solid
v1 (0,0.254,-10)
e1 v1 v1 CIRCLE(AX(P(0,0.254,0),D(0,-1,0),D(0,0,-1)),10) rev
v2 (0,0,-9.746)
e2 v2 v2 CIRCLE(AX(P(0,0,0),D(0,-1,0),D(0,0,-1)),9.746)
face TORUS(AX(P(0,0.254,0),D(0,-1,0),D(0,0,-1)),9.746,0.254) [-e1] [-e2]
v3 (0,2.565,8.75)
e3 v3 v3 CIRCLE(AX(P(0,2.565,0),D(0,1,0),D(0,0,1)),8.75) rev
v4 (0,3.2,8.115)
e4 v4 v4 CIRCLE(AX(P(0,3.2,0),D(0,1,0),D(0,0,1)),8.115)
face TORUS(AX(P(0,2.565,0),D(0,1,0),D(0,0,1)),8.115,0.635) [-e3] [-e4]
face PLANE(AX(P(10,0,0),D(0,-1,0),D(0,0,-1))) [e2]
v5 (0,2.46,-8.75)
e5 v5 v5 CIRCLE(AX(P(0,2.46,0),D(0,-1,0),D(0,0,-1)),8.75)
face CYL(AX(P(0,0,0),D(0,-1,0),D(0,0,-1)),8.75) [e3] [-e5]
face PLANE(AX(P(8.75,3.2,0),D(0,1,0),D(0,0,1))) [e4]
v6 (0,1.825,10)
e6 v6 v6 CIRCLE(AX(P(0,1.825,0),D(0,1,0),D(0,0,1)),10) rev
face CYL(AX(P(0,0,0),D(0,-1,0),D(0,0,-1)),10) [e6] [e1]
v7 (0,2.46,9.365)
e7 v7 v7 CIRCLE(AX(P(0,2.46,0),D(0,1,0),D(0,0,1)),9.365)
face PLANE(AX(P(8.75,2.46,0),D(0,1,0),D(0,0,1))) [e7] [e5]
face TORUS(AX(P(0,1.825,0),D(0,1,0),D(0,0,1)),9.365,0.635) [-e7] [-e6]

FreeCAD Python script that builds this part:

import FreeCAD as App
import Part
import Sketcher

V = App.Vector
Q = App.Units.Quantity


def edges_at(feature, points):
    """Names of the edges that pass closest to the given points."""
    edges = feature.Shape.Edges
    near = lambda p: min(range(len(edges)), key=lambda i: edges[i].distToShape(Part.Vertex(*p))[0])
    return sorted({f"Edge{near(p) + 1}" for p in points})


def add_polygon(sketch, points):
    """Adds a closed chain of lines whose ends are joined by coincident constraints."""
    first, n = sketch.GeometryCount, len(points)
    for a, b in zip(points, points[1:] + points[:1]):
        sketch.addGeometry(Part.LineSegment(App.Vector(*a, 0), App.Vector(*b, 0)), False)
    for i in range(n):
        sketch.addConstraint(Sketcher.Constraint("Coincident", first + i, 2, first + (i + 1) % n, 1))

doc = App.newDocument("Part")
params = doc.addObject("Spreadsheet::Sheet", "Params")
for row, (alias, value) in enumerate([
    ("sketch1_width", "10 mm"),
    ("sketch1_height", "3.2 mm"),
    ("sketch1_width2", "1.25 mm"),
    ("sketch1_height2", "2.46 mm"),
    ("revolution_angle", "360 deg"),
    ("fillet_radius", "0.635 mm"),
    ("fillet2_radius", "0.254 mm"),
], start=1):
    params.set(f"A{row}", alias)
    params.set(f"B{row}", "=" + value)
    params.setAlias(f"B{row}", alias)

body = doc.addObject("PartDesign::Body", "Body")

# Sketch on XY plane
sketch1 = body.newObject("Sketcher::SketchObject", "Sketch")
sketch1.AttachmentSupport = (doc.getObject("XY_Plane"), [""])
sketch1.MapMode = "FlatFace"
add_polygon(sketch1, [(0, 3.2), (0, 0), (10, 0), (10, 2.5), (8.8, 2.5), (8.8, 3.2)])  # lines 0-5
sketch1.addConstraint([
    Sketcher.Constraint("Vertical", 0),
    Sketcher.Constraint("Horizontal", 1),
    Sketcher.Constraint("Vertical", 2),
    Sketcher.Constraint("Horizontal", 3),
    Sketcher.Constraint("Vertical", 4),
    Sketcher.Constraint("Horizontal", 5),
    Sketcher.Constraint("Coincident", 0, 2, -1, 1),
    Sketcher.Constraint("DistanceX", 1, 1, 1, 2, Q("10 mm")),
    Sketcher.Constraint("DistanceY", 0, 2, 0, 1, Q("3.2 mm")),
    Sketcher.Constraint("DistanceX", 3, 2, 3, 1, Q("1.25 mm")),
    Sketcher.Constraint("DistanceY", 2, 1, 2, 2, Q("2.46 mm")),
])
sketch1.setExpression("Constraints[13]", "Params.sketch1_width")
sketch1.setExpression("Constraints[14]", "Params.sketch1_height")
sketch1.setExpression("Constraints[15]", "Params.sketch1_width2")
sketch1.setExpression("Constraints[16]", "Params.sketch1_height2")
revolution = body.newObject("PartDesign::Revolution", "Revolution")
revolution.Profile = sketch1
revolution.ReferenceAxis = (sketch1, ["V_Axis"])
revolution.setExpression("Angle", "Params.revolution_angle")
doc.recompute()

fillet = body.newObject("PartDesign::Fillet", "Fillet")
fillet.Base = (revolution, edges_at(revolution, [(-10, 2.46, 0), (-8.75, 3.2, 0)]))
fillet.setExpression("Radius", "Params.fillet_radius")
doc.recompute()

fillet2 = body.newObject("PartDesign::Fillet", "Fillet001")
fillet2.Base = (fillet, edges_at(fillet, [(-10, 0, 0)]))
fillet2.setExpression("Radius", "Params.fillet2_radius")

doc.recompute()
